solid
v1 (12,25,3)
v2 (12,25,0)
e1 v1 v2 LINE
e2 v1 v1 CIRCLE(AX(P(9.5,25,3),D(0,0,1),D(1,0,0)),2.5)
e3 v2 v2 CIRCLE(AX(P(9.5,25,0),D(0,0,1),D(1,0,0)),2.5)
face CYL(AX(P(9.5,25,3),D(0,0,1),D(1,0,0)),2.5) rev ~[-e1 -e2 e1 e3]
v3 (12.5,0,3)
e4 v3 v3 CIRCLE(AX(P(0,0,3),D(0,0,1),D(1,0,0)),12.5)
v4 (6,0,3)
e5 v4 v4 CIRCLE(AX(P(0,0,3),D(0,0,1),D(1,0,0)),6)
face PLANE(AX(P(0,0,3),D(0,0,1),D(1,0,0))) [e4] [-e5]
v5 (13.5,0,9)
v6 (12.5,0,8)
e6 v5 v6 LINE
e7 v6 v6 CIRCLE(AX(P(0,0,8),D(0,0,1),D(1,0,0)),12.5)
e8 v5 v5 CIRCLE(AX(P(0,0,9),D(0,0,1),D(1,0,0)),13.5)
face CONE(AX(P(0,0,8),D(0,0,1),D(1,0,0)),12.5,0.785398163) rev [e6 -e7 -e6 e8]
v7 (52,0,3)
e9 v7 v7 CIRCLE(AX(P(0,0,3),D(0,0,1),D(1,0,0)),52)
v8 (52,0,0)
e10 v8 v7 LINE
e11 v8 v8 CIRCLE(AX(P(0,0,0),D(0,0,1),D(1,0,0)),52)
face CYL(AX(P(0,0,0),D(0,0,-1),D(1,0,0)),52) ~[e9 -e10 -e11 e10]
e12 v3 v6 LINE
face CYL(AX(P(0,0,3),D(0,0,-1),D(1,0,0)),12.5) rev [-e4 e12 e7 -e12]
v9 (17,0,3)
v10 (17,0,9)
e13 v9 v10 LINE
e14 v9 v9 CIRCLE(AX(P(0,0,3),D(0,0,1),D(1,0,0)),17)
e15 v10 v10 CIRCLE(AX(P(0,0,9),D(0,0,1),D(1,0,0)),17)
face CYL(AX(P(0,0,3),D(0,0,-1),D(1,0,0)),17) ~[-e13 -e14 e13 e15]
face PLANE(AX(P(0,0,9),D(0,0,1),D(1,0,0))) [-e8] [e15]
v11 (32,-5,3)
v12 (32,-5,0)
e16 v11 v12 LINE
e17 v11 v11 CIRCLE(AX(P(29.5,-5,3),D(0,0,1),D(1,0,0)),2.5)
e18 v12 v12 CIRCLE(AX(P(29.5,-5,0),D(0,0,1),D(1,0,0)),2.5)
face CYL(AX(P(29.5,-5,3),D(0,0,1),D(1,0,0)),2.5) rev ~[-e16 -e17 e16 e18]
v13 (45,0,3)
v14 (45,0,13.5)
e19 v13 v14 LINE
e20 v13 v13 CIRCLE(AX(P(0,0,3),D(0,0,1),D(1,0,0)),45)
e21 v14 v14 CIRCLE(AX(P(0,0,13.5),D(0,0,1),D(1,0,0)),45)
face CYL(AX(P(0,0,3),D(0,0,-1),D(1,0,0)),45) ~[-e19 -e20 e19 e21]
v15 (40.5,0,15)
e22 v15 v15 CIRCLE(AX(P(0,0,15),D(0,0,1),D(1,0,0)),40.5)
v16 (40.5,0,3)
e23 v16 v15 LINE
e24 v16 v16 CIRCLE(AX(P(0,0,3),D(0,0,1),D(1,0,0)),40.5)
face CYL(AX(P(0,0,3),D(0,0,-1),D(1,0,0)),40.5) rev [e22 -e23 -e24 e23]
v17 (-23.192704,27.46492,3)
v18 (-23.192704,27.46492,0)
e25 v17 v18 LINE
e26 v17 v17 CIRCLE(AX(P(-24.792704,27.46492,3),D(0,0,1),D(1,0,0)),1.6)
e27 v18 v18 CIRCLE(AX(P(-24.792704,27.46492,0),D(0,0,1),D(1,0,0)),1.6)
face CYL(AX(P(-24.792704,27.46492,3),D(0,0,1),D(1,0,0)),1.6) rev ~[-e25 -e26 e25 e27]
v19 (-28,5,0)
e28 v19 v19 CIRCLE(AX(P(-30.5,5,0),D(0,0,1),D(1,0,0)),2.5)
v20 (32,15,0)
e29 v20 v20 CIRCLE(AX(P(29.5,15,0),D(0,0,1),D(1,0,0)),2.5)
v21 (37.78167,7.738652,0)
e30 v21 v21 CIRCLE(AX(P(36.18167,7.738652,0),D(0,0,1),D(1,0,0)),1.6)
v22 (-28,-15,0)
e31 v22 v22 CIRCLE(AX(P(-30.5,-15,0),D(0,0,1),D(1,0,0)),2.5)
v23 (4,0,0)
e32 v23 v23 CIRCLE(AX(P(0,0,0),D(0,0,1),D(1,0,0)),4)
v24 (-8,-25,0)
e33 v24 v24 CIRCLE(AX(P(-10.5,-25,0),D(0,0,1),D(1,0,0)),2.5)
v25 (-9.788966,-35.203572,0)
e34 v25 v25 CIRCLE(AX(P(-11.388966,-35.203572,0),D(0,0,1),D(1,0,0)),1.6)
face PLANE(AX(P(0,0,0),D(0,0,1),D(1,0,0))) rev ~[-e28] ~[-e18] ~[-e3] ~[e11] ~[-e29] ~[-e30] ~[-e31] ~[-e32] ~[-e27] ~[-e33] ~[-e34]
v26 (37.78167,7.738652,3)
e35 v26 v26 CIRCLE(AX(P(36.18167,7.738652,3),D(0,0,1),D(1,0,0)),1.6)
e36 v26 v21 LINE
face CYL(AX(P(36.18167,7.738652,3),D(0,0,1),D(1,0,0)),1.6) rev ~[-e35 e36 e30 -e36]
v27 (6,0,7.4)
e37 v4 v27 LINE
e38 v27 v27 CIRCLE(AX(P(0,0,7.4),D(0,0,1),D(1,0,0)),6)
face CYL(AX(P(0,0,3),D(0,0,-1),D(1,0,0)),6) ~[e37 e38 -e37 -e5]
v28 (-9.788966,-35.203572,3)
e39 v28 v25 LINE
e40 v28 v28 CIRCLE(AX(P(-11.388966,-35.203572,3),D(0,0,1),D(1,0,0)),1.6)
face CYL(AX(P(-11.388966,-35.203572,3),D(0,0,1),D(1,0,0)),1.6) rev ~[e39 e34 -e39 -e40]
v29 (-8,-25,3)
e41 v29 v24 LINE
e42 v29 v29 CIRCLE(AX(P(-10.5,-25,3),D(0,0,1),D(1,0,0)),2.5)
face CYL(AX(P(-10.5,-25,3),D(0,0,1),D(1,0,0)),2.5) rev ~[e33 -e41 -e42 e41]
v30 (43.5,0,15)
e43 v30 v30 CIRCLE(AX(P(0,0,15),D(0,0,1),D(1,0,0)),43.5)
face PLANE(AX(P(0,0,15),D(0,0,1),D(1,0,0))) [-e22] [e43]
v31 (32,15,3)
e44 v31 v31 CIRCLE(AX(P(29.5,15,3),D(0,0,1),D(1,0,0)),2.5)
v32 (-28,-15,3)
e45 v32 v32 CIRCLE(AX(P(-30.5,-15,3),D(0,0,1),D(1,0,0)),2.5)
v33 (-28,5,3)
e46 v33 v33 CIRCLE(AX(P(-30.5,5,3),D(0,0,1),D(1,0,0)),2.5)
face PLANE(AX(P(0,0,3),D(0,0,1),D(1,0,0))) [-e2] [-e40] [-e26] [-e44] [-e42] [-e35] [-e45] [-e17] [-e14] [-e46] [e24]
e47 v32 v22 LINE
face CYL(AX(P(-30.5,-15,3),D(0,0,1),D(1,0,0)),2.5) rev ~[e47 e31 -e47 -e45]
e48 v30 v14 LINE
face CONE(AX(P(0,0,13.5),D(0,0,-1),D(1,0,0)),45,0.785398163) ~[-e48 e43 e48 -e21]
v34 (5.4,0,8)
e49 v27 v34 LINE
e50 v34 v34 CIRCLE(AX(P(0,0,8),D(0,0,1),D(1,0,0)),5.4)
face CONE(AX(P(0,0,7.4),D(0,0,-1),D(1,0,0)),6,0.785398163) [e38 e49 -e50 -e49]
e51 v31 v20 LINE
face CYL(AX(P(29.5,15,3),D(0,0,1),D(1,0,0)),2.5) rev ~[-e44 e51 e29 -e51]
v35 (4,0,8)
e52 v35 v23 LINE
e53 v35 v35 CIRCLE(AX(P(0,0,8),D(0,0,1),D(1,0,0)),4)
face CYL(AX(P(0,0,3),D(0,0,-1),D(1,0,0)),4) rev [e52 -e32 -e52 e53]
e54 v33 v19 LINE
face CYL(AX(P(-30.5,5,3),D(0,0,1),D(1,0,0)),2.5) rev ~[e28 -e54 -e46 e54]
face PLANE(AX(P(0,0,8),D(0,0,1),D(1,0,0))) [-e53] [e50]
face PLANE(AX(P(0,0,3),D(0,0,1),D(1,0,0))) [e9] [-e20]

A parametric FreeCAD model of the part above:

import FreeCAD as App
import Part
import Sketcher
Q = App.Units.Quantity


def edges_at(feature, points):
    """Names of the edges that pass closest to the given points."""
    edges = feature.Shape.Edges
    near = lambda p: min(range(len(edges)), key=lambda i: edges[i].distToShape(Part.Vertex(*p))[0])
    return sorted({f"Edge{near(p) + 1}" for p in points})

doc = App.newDocument("Part")
body = doc.addObject("PartDesign::Body", "Body")

sketch1 = doc.addObject("Sketcher::SketchObject", "Sketch")
body.addObject(sketch1)
sketch1.AttachmentSupport = (doc.XY_Plane, [""])
sketch1.MapMode = "FlatFace"
sketch1.addGeometry([
    Part.Circle(App.Vector(0, 0, 0), App.Vector(0, 0, 1), 52),
    Part.Circle(App.Vector(0, 0, 0), App.Vector(0, 0, 1), 4),
], False)
sketch1.addConstraint([
    Sketcher.Constraint("Coincident", 0, 3, -1, 1),
    Sketcher.Constraint("Coincident", 1, 3, -1, 1),
    Sketcher.Constraint("Diameter", 0, Q("104 mm")),
    Sketcher.Constraint("Diameter", 1, Q("8 mm")),
])
pad1 = doc.addObject("PartDesign::Pad", "Pad")
body.addObject(pad1)
pad1.Profile = sketch1
pad1.Length = 3

sketch2 = doc.addObject("Sketcher::SketchObject", "Sketch001")
body.addObject(sketch2)
sketch2.AttachmentSupport = (doc.XY_Plane, [""])
sketch2.MapMode = "FlatFace"
sketch2.AttachmentOffset = App.Placement(App.Vector(0, 0, 3), App.Rotation())
sketch2.addGeometry([
    Part.Circle(App.Vector(0, 0, 0), App.Vector(0, 0, 1), 45),
    Part.Circle(App.Vector(0, 0, 0), App.Vector(0, 0, 1), 40),
], False)
sketch2.addConstraint([
    Sketcher.Constraint("Coincident", 0, 3, -1, 1),
    Sketcher.Constraint("Coincident", 1, 3, -1, 1),
    Sketcher.Constraint("Diameter", 0, Q("90 mm")),
    Sketcher.Constraint("Diameter", 1, Q("81 mm")),
])
pad2 = doc.addObject("PartDesign::Pad", "Pad001")
body.addObject(pad2)
pad2.Profile = sketch2
pad2.Length = 12

sketch3 = doc.addObject("Sketcher::SketchObject", "Sketch002")
body.addObject(sketch3)
sketch3.AttachmentSupport = (doc.XY_Plane, [""])
sketch3.MapMode = "FlatFace"
sketch3.AttachmentOffset = App.Placement(App.Vector(0, 0, 3), App.Rotation())
sketch3.addGeometry([
    Part.Circle(App.Vector(-30.5, 5, 0), App.Vector(0, 0, 1), 2.5),
    Part.Circle(App.Vector(-30.5, -15, 0), App.Vector(0, 0, 1), 2.5),
    Part.Circle(App.Vector(-10.5, -25, 0), App.Vector(0, 0, 1), 2.5),
    Part.Circle(App.Vector(9.5, 25, 0), App.Vector(0, 0, 1), 2.5),
    Part.Circle(App.Vector(29.5, 15, 0), App.Vector(0, 0, 1), 2.5),
    Part.Circle(App.Vector(29.5, -5, 0), App.Vector(0, 0, 1), 2.5),
], False)
sketch3.addConstraint([
    Sketcher.Constraint("Equal", 0, 1),
    Sketcher.Constraint("Equal", 1, 2),
    Sketcher.Constraint("Equal", 2, 3),
    Sketcher.Constraint("Equal", 3, 4),
    Sketcher.Constraint("Equal", 4, 5),
    Sketcher.Constraint("Vertical", 0, 3, 1, 3),
    Sketcher.Constraint("Vertical", 4, 3, 5, 3),
    Sketcher.Constraint("Diameter", 0, Q("5 mm")),
    Sketcher.Constraint("DistanceY", -1, 1, 0, 3, Q("5 mm")),
    Sketcher.Constraint("DistanceY", 1, 3, -1, 1, Q("15 mm")),
    Sketcher.Constraint("DistanceY", 2, 3, -1, 1, Q("25 mm")),
    Sketcher.Constraint("DistanceY", -1, 1, 3, 3, Q("25 mm")),
    Sketcher.Constraint("DistanceY", -1, 1, 4, 3, Q("15 mm")),
    Sketcher.Constraint("DistanceY", 5, 3, -1, 1, Q("5 mm")),
    Sketcher.Constraint("DistanceX", 1, 3, 2, 3, Q("20 mm")),
    Sketcher.Constraint("DistanceX", 0, 3, 3, 3, Q("40 mm")),
    Sketcher.Constraint("DistanceX", 3, 3, 4, 3, Q("20 mm")),
    Sketcher.Constraint("DistanceX", 0, 3, -1, 1, Q("30.5 mm")),
])
pocket1 = doc.addObject("PartDesign::Pocket", "Pocket")
body.addObject(pocket1)
pocket1.Profile = sketch3
pocket1.Type = "ThroughAll"

sketch4 = doc.addObject("Sketcher::SketchObject", "Sketch003")
body.addObject(sketch4)
sketch4.AttachmentSupport = (doc.XY_Plane, [""])
sketch4.MapMode = "FlatFace"
sketch4.AttachmentOffset = App.Placement(App.Vector(0, 0, 3), App.Rotation())
sketch4.addGeometry([
    Part.Circle(App.Vector(0, 0, 0), App.Vector(0, 0, 1), 17),
    Part.Circle(App.Vector(0, 0, 0), App.Vector(0, 0, 1), 12),
], False)
sketch4.addConstraint([
    Sketcher.Constraint("Coincident", 0, 3, -1, 1),
    Sketcher.Constraint("Coincident", 1, 3, -1, 1),
    Sketcher.Constraint("Diameter", 0, Q("34 mm")),
    Sketcher.Constraint("Diameter", 1, Q("25 mm")),
])
pad3 = doc.addObject("PartDesign::Pad", "Pad002")
body.addObject(pad3)
pad3.Profile = sketch4
pad3.Length = 6

sketch5 = doc.addObject("Sketcher::SketchObject", "Sketch004")
body.addObject(sketch5)
sketch5.AttachmentSupport = (doc.XY_Plane, [""])
sketch5.MapMode = "FlatFace"
sketch5.AttachmentOffset = App.Placement(App.Vector(0, 0, 3), App.Rotation())
sketch5.addGeometry([
    Part.Circle(App.Vector(0, 0, 0), App.Vector(0, 0, 1), 6),
    Part.Circle(App.Vector(0, 0, 0), App.Vector(0, 0, 1), 4),
], False)
sketch5.addConstraint([
    Sketcher.Constraint("Coincident", 0, 3, -1, 1),
    Sketcher.Constraint("Coincident", 1, 3, -1, 1),
    Sketcher.Constraint("Diameter", 0, Q("12 mm")),
    Sketcher.Constraint("Diameter", 1, Q("8 mm")),
])
pad4 = doc.addObject("PartDesign::Pad", "Pad003")
body.addObject(pad4)
pad4.Profile = sketch5
pad4.Length = 5
doc.recompute()

chamfer = doc.addObject("PartDesign::Chamfer", "Chamfer")
body.addObject(chamfer)
chamfer.Base = (pad4, edges_at(pad4, [(-45, 0, 15)]))
chamfer.Size = 1.5
doc.recompute()

chamfer2 = doc.addObject("PartDesign::Chamfer", "Chamfer001")
body.addObject(chamfer2)
chamfer2.Base = (chamfer, edges_at(chamfer, [(-12.5, 0, 9)]))
chamfer2.Size = 1
doc.recompute()

chamfer3 = doc.addObject("PartDesign::Chamfer", "Chamfer002")
body.addObject(chamfer3)
chamfer3.Base = (chamfer2, edges_at(chamfer2, [(-6, 0, 8)]))
chamfer3.Size = 0.6

sketch6 = doc.addObject("Sketcher::SketchObject", "Sketch005")
body.addObject(sketch6)
sketch6.AttachmentSupport = (doc.XY_Plane, [""])
sketch6.MapMode = "FlatFace"
sketch6.AttachmentOffset = App.Placement(App.Vector(0, 0, 3), App.Rotation())
sketch6.addGeometry([
    Part.Circle(App.Vector(-24.8, 27.5, 0), App.Vector(0, 0, 1), 1.6),
    Part.Circle(App.Vector(36.2, 7.7, 0), App.Vector(0, 0, 1), 1.6),
    Part.Circle(App.Vector(-11.4, -35.2, 0), App.Vector(0, 0, 1), 1.6),
], False)
sketch6.addConstraint([
    Sketcher.Constraint("Equal", 0, 1),
    Sketcher.Constraint("Equal", 1, 2),
    Sketcher.Constraint("Diameter", 0, Q("3.2 mm")),
    Sketcher.Constraint("DistanceY", -1, 1, 0, 3, Q("27.46492 mm")),
    Sketcher.Constraint("DistanceX", -1, 1, 1, 3, Q("36.18167 mm")),
    Sketcher.Constraint("DistanceX", 0, 3, -1, 1, Q("24.792704 mm")),
    Sketcher.Constraint("DistanceY", -1, 1, 1, 3, Q("7.738652 mm")),
    Sketcher.Constraint("DistanceX", 2, 3, -1, 1, Q("11.388966 mm")),
    Sketcher.Constraint("DistanceY", 2, 3, -1, 1, Q("35.203572 mm")),
])
pocket2 = doc.addObject("PartDesign::Pocket", "Pocket001")
body.addObject(pocket2)
pocket2.Profile = sketch6
pocket2.Type = "ThroughAll"

doc.recompute()
